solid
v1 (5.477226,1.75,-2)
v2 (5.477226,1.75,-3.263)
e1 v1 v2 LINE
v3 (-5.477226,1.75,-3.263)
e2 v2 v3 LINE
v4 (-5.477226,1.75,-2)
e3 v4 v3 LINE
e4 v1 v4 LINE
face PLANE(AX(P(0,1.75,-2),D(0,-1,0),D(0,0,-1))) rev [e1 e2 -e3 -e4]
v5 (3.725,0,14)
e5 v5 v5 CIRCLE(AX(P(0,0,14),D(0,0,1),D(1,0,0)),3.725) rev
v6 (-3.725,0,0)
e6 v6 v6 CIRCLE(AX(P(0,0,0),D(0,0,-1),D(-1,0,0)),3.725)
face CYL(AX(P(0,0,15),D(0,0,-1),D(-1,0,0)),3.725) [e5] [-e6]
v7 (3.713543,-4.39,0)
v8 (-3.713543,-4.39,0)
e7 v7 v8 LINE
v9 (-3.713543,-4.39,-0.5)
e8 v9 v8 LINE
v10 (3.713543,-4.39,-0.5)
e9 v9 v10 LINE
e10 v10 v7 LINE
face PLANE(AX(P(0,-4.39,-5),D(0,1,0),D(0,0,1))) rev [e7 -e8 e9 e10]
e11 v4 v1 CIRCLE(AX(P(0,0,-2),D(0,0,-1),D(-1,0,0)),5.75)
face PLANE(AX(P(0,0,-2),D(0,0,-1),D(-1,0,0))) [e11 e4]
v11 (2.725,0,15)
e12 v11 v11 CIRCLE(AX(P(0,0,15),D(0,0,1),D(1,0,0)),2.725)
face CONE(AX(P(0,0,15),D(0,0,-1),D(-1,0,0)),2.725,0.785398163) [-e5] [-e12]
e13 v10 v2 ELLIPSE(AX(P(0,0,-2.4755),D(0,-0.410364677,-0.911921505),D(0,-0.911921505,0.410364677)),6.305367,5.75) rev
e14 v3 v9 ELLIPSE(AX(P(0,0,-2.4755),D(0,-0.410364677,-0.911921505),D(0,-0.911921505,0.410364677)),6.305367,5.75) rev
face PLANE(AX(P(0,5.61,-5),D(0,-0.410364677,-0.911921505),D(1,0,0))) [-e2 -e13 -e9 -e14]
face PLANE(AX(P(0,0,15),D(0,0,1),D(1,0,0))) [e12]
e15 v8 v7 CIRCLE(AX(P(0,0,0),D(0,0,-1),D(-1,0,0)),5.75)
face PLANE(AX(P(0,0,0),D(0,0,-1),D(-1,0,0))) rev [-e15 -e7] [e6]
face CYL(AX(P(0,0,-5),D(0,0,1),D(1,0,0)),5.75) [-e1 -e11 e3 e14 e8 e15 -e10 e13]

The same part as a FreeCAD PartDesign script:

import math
import FreeCAD as App
import Part
import Sketcher


def edges_at(feature, points):
    """Names of the edges that pass closest to the given points."""
    edges = feature.Shape.Edges
    near = lambda p: min(range(len(edges)), key=lambda i: edges[i].distToShape(Part.Vertex(*p))[0])
    return sorted({f"Edge{near(p) + 1}" for p in points})

doc = App.newDocument("Part")
body = doc.addObject("PartDesign::Body", "Body")

sketch1 = doc.addObject("Sketcher::SketchObject", "Sketch")
body.addObject(sketch1)
sketch1.AttachmentSupport = (doc.XY_Plane, [""])
sketch1.MapMode = "FlatFace"
sketch1.addGeometry(Part.Circle(App.Vector(0, 0, 0), App.Vector(0, 0, 1), 3.7), False)
sketch1.addConstraint(Sketcher.Constraint("Coincident", 0, 3, -1, 1))
sketch1.addConstraint(Sketcher.Constraint("Diameter", 0, 7.45))
pad1 = doc.addObject("PartDesign::Pad", "Pad")
body.addObject(pad1)
pad1.Profile = sketch1
pad1.Length = 15

sketch2 = doc.addObject("Sketcher::SketchObject", "Sketch001")
body.addObject(sketch2)
sketch2.AttachmentSupport = (doc.XY_Plane, [""])
sketch2.MapMode = "FlatFace"
sketch2.AttachmentOffset = App.Placement(App.Vector(0, 0, -5), App.Rotation())
sketch2.addGeometry(Part.ArcOfCircle(Part.Circle(App.Vector(0, 0, 0), App.Vector(0, 0, 1), 5.8), math.radians(-50), math.radians(180)), False)
sketch2.addGeometry(Part.LineSegment(App.Vector(3.7, -4.4, 0), App.Vector(-3.7, -4.4, 0)), False)
sketch2.addGeometry(Part.ArcOfCircle(Part.Circle(App.Vector(0, 0, 0), App.Vector(0, 0, 1), 5.8), math.radians(180), math.radians(230)), False)
sketch2.addConstraint(Sketcher.Constraint("Coincident", 0, 1, 1, 1))
sketch2.addConstraint(Sketcher.Constraint("Coincident", 1, 2, 2, 2))
sketch2.addConstraint(Sketcher.Constraint("Tangent", 2, 1, 0, 2))
sketch2.addConstraint(Sketcher.Constraint("Horizontal", 1))
sketch2.addConstraint(Sketcher.Constraint("Coincident", 0, 3, -1, 1))
sketch2.addConstraint(Sketcher.Constraint("Equal", 0, 2))
sketch2.addConstraint(Sketcher.Constraint("PointOnObject", 2, 1, -1))
sketch2.addConstraint(Sketcher.Constraint("Radius", 0, 5.75))
sketch2.addConstraint(Sketcher.Constraint("DistanceY", 0, 1, -1, 1, 4.39))
pad2 = doc.addObject("PartDesign::Pad", "Pad001")
body.addObject(pad2)
pad2.Profile = sketch2
pad2.Length = 5
doc.recompute()

chamfer = doc.addObject("PartDesign::Chamfer", "Chamfer")
body.addObject(chamfer)
chamfer.Base = (pad2, edges_at(pad2, [(-3.725, 0, 15)]))
chamfer.Size = 1
doc.recompute()

chamfer2 = doc.addObject("PartDesign::Chamfer", "Chamfer001")
body.addObject(chamfer2)
chamfer2.Base = (chamfer, edges_at(chamfer, [(0, -4.39, -5)]))
chamfer2.ChamferType = "Two distances"
chamfer2.Size = 4.5
chamfer2.Size2 = 10

sketch3 = doc.addObject("Sketcher::SketchObject", "Sketch002")
body.addObject(sketch3)
sketch3.AttachmentSupport = (doc.XY_Plane, [""])
sketch3.MapMode = "FlatFace"
sketch3.AttachmentOffset = App.Placement(App.Vector(0, 0, -5), App.Rotation())
sketch3.addGeometry(Part.ArcOfCircle(Part.Circle(App.Vector(0, 0, 0), App.Vector(0, 0, 1), 5.7), math.radians(18), math.radians(77)), False)
sketch3.addGeometry(Part.LineSegment(App.Vector(5.5, 1.8, 0), App.Vector(-5.5, 1.8, 0)), False)
sketch3.addGeometry(Part.ArcOfCircle(Part.Circle(App.Vector(0, 0, 0), App.Vector(0, 0, 1), 5.7), math.radians(103), math.radians(162)), False)
sketch3.addGeometry(Part.ArcOfCircle(Part.Circle(App.Vector(0, 0, 0), App.Vector(0, 0, 1), 5.8), math.radians(77), math.radians(103)), False)
sketch3.addConstraint(Sketcher.Constraint("Coincident", 0, 1, 1, 1))
sketch3.addConstraint(Sketcher.Constraint("Coincident", 1, 2, 2, 2))
sketch3.addConstraint(Sketcher.Constraint("Tangent", 2, 1, 3, 2))
sketch3.addConstraint(Sketcher.Constraint("Tangent", 3, 1, 0, 2))
sketch3.addConstraint(Sketcher.Constraint("Horizontal", 1))
sketch3.addConstraint(Sketcher.Constraint("Coincident", 0, 3, -1, 1))
sketch3.addConstraint(Sketcher.Constraint("Coincident", 2, 3, -1, 1))
sketch3.addConstraint(Sketcher.Constraint("Horizontal", 2, 1, 3, 1))
sketch3.addConstraint(Sketcher.Constraint("Radius", 0, 5.75))
sketch3.addConstraint(Sketcher.Constraint("DistanceY", -1, 1, 0, 1, 1.75))
sketch3.addConstraint(Sketcher.Constraint("DistanceY", -1, 1, 2, 1, 5.61))
pocket1 = doc.addObject("PartDesign::Pocket", "Pocket")
body.addObject(pocket1)
pocket1.Profile = sketch3
pocket1.Length = 3
pocket1.Reversed = True

doc.recompute()
